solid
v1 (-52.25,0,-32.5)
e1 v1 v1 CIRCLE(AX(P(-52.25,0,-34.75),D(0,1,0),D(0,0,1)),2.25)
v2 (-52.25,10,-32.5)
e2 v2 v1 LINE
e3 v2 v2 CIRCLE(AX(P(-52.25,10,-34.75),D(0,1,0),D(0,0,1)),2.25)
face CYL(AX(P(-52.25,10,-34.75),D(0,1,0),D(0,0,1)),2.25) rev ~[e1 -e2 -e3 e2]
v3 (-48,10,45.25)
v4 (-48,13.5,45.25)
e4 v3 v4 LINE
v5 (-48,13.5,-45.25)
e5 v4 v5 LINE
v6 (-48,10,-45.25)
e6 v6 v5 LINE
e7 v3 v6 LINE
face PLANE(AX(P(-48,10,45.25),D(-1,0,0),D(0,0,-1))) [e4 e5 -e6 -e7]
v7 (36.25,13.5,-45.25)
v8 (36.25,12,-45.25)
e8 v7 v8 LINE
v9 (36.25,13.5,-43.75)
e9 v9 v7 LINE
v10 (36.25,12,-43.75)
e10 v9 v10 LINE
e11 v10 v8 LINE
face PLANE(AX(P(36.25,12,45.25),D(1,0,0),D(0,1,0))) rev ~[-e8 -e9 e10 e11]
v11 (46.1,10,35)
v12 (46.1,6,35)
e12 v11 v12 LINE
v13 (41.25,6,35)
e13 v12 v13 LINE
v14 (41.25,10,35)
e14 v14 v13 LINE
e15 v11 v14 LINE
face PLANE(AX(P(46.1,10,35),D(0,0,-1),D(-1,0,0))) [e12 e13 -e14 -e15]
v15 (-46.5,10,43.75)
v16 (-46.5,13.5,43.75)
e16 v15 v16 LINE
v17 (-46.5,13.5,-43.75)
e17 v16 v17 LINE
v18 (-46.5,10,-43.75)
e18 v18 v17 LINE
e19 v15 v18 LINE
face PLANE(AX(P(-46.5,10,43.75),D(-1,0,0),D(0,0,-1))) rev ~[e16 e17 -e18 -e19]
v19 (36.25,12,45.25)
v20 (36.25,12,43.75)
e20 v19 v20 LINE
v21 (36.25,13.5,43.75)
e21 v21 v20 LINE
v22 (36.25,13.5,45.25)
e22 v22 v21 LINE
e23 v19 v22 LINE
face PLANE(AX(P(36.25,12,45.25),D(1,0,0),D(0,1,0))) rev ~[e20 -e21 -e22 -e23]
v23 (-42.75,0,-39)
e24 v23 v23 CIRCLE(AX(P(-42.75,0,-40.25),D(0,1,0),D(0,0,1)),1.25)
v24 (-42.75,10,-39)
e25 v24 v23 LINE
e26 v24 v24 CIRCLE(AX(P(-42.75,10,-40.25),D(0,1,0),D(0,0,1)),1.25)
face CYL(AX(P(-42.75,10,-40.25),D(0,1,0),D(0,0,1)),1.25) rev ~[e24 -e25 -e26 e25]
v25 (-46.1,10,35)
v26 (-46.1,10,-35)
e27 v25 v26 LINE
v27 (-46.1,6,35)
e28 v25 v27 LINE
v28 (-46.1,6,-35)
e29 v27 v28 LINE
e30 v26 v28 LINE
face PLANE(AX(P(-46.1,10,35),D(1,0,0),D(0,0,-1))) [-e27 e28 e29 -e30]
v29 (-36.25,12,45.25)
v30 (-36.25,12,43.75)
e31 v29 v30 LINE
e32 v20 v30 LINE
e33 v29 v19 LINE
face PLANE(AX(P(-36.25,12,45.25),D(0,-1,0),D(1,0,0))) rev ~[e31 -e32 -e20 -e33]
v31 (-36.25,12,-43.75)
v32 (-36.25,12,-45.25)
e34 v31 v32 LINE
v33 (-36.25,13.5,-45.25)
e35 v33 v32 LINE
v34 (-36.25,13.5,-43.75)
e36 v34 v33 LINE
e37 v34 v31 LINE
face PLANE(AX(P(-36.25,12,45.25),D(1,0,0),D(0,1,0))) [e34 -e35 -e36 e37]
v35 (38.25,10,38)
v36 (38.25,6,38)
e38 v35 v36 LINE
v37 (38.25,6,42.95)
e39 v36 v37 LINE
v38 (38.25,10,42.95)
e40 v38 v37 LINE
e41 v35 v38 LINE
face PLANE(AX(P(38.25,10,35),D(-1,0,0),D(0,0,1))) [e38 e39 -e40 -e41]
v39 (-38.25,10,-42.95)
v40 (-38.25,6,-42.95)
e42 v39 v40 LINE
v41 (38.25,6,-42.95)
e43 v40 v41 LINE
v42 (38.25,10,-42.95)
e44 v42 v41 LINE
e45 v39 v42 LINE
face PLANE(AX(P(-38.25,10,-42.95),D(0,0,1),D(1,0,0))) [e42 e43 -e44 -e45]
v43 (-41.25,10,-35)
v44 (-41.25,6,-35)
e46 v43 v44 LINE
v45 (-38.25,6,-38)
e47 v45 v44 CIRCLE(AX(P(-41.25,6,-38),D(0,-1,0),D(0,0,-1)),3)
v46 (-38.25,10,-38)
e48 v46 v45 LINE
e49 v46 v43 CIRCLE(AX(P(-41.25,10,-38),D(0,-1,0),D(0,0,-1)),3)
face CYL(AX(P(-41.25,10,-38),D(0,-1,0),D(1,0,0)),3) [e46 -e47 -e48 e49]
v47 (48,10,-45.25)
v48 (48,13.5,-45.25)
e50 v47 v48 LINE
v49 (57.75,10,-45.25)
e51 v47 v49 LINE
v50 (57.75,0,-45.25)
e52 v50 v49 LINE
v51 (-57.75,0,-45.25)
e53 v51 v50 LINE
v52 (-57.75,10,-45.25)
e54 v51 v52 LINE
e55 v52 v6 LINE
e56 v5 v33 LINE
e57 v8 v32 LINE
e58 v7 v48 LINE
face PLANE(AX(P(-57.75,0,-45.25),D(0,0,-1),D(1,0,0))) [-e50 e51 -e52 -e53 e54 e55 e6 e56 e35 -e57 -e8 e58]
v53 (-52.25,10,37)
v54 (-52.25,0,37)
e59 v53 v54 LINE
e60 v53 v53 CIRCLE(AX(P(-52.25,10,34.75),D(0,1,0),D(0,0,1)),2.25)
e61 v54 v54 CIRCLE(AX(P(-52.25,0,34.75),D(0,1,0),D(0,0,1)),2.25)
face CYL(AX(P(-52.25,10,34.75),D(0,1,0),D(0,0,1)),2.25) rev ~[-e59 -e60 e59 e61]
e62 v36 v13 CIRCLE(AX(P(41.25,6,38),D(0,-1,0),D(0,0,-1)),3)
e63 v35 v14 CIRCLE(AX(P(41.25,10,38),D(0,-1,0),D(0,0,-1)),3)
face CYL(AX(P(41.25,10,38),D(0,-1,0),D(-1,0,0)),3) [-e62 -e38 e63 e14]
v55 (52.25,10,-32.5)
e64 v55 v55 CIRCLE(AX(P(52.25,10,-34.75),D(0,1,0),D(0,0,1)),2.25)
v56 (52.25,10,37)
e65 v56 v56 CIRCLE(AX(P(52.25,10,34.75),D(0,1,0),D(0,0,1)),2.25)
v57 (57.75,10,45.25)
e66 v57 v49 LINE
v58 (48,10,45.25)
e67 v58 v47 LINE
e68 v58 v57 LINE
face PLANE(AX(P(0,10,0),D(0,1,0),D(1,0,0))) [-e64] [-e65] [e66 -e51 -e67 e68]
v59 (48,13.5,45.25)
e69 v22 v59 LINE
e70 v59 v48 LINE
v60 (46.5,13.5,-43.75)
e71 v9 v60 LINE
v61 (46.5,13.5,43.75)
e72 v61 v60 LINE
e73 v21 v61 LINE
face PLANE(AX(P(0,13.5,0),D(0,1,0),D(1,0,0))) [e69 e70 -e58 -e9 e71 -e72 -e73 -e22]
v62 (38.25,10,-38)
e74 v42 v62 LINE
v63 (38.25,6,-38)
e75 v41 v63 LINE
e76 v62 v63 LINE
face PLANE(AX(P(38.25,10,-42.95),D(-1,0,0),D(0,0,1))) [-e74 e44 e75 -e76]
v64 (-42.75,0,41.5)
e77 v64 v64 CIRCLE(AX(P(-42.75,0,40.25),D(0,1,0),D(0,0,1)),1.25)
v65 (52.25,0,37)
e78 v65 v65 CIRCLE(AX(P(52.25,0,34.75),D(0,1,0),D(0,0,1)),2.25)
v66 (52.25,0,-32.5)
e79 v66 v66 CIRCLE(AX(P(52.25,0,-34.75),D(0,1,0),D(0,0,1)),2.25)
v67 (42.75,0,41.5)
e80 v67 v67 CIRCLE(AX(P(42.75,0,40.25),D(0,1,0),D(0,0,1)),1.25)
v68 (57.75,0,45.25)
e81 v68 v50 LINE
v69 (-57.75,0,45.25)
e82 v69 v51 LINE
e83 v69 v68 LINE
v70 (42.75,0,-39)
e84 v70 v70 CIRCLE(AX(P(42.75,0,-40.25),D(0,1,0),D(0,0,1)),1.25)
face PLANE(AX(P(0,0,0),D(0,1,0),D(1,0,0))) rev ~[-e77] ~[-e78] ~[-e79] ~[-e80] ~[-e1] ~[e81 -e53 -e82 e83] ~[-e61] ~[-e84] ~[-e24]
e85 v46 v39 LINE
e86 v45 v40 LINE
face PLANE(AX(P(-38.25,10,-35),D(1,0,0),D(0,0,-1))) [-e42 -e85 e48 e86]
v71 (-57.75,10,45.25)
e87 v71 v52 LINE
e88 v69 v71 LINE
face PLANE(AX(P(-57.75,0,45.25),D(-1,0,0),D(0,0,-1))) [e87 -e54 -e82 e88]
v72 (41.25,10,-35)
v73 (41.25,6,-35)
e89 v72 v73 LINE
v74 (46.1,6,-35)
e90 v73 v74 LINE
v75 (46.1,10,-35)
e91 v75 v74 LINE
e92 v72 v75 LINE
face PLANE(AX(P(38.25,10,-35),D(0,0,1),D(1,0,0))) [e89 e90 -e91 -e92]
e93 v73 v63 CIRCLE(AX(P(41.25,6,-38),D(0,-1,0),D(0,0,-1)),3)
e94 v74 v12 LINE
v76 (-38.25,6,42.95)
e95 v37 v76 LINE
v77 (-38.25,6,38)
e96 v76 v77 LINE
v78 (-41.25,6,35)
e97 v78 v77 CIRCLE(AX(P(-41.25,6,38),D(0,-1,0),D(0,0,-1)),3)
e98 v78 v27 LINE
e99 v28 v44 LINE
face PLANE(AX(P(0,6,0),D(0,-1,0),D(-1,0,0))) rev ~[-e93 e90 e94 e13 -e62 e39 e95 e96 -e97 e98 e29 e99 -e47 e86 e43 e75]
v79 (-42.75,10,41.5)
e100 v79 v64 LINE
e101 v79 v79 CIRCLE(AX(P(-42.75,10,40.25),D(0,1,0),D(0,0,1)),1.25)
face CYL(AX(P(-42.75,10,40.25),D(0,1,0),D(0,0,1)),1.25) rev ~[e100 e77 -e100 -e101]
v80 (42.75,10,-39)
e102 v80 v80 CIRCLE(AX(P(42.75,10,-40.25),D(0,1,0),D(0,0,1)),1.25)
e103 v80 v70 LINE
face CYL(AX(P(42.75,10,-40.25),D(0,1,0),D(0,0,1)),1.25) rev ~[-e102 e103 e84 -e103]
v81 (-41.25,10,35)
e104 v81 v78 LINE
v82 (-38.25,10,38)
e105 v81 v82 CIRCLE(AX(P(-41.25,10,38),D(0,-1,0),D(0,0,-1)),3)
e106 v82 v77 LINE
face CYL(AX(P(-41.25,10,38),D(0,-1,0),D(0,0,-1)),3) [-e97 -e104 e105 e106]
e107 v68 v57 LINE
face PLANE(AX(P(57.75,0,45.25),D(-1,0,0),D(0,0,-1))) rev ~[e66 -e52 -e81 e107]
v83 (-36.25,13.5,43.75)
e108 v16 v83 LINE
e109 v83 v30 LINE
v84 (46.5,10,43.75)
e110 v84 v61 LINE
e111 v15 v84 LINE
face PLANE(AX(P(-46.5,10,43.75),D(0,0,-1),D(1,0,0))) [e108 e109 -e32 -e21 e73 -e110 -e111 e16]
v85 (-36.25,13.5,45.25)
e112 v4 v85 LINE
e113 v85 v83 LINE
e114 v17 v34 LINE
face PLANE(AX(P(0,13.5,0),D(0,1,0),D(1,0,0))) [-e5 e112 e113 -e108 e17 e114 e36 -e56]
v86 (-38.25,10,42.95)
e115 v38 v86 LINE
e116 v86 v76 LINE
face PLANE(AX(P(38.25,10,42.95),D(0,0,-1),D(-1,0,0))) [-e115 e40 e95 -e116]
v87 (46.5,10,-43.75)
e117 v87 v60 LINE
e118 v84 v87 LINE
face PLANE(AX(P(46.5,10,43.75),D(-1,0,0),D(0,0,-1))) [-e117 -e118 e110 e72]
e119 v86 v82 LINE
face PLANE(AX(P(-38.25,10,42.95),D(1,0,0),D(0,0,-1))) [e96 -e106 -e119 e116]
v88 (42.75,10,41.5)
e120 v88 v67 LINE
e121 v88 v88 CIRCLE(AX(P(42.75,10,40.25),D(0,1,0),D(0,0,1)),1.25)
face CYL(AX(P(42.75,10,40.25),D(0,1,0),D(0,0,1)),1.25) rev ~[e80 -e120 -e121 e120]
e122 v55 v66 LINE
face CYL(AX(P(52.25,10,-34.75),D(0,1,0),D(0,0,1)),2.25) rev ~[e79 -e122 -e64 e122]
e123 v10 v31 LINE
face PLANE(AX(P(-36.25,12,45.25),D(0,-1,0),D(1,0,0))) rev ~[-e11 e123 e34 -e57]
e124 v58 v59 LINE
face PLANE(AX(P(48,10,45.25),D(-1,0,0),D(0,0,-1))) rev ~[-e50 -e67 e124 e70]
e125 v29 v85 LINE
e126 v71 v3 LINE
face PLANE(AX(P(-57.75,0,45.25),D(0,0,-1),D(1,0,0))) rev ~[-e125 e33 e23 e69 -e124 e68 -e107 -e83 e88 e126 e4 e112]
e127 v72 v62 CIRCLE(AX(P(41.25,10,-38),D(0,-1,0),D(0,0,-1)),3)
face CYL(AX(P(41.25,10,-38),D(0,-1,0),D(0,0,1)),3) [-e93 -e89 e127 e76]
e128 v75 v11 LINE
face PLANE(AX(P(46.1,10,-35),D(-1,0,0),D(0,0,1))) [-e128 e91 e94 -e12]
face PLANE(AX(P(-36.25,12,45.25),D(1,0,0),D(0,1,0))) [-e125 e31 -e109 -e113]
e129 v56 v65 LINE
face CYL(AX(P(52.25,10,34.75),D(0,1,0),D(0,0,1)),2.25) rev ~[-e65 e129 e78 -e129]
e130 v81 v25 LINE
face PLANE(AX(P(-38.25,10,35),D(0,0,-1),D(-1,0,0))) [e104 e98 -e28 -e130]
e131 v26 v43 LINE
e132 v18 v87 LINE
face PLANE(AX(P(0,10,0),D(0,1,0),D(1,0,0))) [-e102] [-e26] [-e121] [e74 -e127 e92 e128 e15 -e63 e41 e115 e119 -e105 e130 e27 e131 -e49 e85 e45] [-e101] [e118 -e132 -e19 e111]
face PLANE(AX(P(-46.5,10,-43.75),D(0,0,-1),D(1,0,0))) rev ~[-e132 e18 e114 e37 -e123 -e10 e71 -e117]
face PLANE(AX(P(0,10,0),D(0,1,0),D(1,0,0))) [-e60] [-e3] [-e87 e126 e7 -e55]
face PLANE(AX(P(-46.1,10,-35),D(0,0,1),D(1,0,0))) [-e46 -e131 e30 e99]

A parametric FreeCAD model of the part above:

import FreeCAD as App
import Part
import Sketcher


def edges_at(feature, points):
    """Names of the edges that pass closest to the given points."""
    edges = feature.Shape.Edges
    near = lambda p: min(range(len(edges)), key=lambda i: edges[i].distToShape(Part.Vertex(*p))[0])
    return sorted({f"Edge{near(p) + 1}" for p in points})

doc = App.newDocument("Part")
body = doc.addObject("PartDesign::Body", "Body")

# Sketch on XZ plane
sketch1 = body.newObject("Sketcher::SketchObject", "Sketch")
sketch1.AttachmentSupport = (doc.getObject("XZ_Plane"), [""])
sketch1.MapMode = "FlatFace"
sketch1.addGeometry(Part.LineSegment(App.Vector(-58, -45, 0), App.Vector(-58, 45, 0)), False)
sketch1.addGeometry(Part.LineSegment(App.Vector(-58, 45, 0), App.Vector(58, 45, 0)), False)
sketch1.addGeometry(Part.LineSegment(App.Vector(58, 45, 0), App.Vector(58, -45, 0)), False)
sketch1.addGeometry(Part.LineSegment(App.Vector(58, -45, 0), App.Vector(-58, -45, 0)), False)
sketch1.addConstraint(Sketcher.Constraint("Coincident", 0, 2, 1, 1))
sketch1.addConstraint(Sketcher.Constraint("Coincident", 1, 2, 2, 1))
sketch1.addConstraint(Sketcher.Constraint("Coincident", 2, 2, 3, 1))
sketch1.addConstraint(Sketcher.Constraint("Coincident", 3, 2, 0, 1))
sketch1.addConstraint(Sketcher.Constraint("Vertical", 0))
sketch1.addConstraint(Sketcher.Constraint("Horizontal", 1))
sketch1.addConstraint(Sketcher.Constraint("Vertical", 2))
sketch1.addConstraint(Sketcher.Constraint("Horizontal", 3))
sketch1.addConstraint(Sketcher.Constraint("Symmetric", 0, 2, 2, 2, -1, 1))
sketch1.addConstraint(Sketcher.Constraint("DistanceX", 1, 1, 1, 2, 115.5))
sketch1.addConstraint(Sketcher.Constraint("DistanceY", 0, 1, 0, 2, 90.5))
pad1 = body.newObject("PartDesign::Pad", "Pad")
pad1.Profile = sketch1
pad1.Length = 10
pad1.Reversed = True

# Sketch on XZ plane
sketch2 = body.newObject("Sketcher::SketchObject", "Sketch001")
sketch2.AttachmentSupport = (doc.getObject("XZ_Plane"), [""])
sketch2.MapMode = "FlatFace"
sketch2.AttachmentOffset = App.Placement(App.Vector(0, 0, -10), App.Rotation())
sketch2.addGeometry(Part.LineSegment(App.Vector(-48, -45, 0), App.Vector(-48, 45, 0)), False)
sketch2.addGeometry(Part.LineSegment(App.Vector(-48, 45, 0), App.Vector(48, 45, 0)), False)
sketch2.addGeometry(Part.LineSegment(App.Vector(48, 45, 0), App.Vector(48, -45, 0)), False)
sketch2.addGeometry(Part.LineSegment(App.Vector(48, -45, 0), App.Vector(-48, -45, 0)), False)
sketch2.addGeometry(Part.LineSegment(App.Vector(46, 44, 0), App.Vector(-46, 44, 0)), False)
sketch2.addGeometry(Part.LineSegment(App.Vector(-46, 44, 0), App.Vector(-46, -44, 0)), False)
sketch2.addGeometry(Part.LineSegment(App.Vector(-46, -44, 0), App.Vector(46, -44, 0)), False)
sketch2.addGeometry(Part.LineSegment(App.Vector(46, -44, 0), App.Vector(46, 44, 0)), False)
sketch2.addConstraint(Sketcher.Constraint("Coincident", 0, 2, 1, 1))
sketch2.addConstraint(Sketcher.Constraint("Coincident", 1, 2, 2, 1))
sketch2.addConstraint(Sketcher.Constraint("Coincident", 2, 2, 3, 1))
sketch2.addConstraint(Sketcher.Constraint("Coincident", 3, 2, 0, 1))
sketch2.addConstraint(Sketcher.Constraint("Coincident", 4, 2, 5, 1))
sketch2.addConstraint(Sketcher.Constraint("Coincident", 5, 2, 6, 1))
sketch2.addConstraint(Sketcher.Constraint("Coincident", 6, 2, 7, 1))
sketch2.addConstraint(Sketcher.Constraint("Coincident", 7, 2, 4, 1))
sketch2.addConstraint(Sketcher.Constraint("Vertical", 0))
sketch2.addConstraint(Sketcher.Constraint("Horizontal", 1))
sketch2.addConstraint(Sketcher.Constraint("Vertical", 2))
sketch2.addConstraint(Sketcher.Constraint("Horizontal", 3))
sketch2.addConstraint(Sketcher.Constraint("Horizontal", 4))
sketch2.addConstraint(Sketcher.Constraint("Vertical", 5))
sketch2.addConstraint(Sketcher.Constraint("Horizontal", 6))
sketch2.addConstraint(Sketcher.Constraint("Vertical", 7))
sketch2.addConstraint(Sketcher.Constraint("Symmetric", 0, 2, 2, 2, -1, 1))
sketch2.addConstraint(Sketcher.Constraint("Symmetric", 4, 2, 6, 2, -1, 1))
sketch2.addConstraint(Sketcher.Constraint("DistanceX", 1, 1, 1, 2, 96.0))
sketch2.addConstraint(Sketcher.Constraint("DistanceX", 4, 2, 4, 1, 93.0))
sketch2.addConstraint(Sketcher.Constraint("DistanceY", 0, 1, 0, 2, 90.5))
sketch2.addConstraint(Sketcher.Constraint("DistanceY", 5, 2, 5, 1, 87.5))
pad2 = body.newObject("PartDesign::Pad", "Pad001")
pad2.Profile = sketch2
pad2.Length = 3.5
pad2.Reversed = True

# Sketch on XZ plane
sketch3 = body.newObject("Sketcher::SketchObject", "Sketch002")
sketch3.AttachmentSupport = (doc.getObject("XZ_Plane"), [""])
sketch3.MapMode = "FlatFace"
sketch3.AttachmentOffset = App.Placement(App.Vector(0, 0, -10), App.Rotation())
sketch3.addGeometry(Part.Circle(App.Vector(-42.8, -40.2, 0), App.Vector(0, 0, 1), 1.2), False)
sketch3.addGeometry(Part.Circle(App.Vector(42.8, -40.2, 0), App.Vector(0, 0, 1), 1.2), False)
sketch3.addGeometry(Part.Circle(App.Vector(42.8, 40.2, 0), App.Vector(0, 0, 1), 1.2), False)
sketch3.addGeometry(Part.Circle(App.Vector(-42.8, 40.2, 0), App.Vector(0, 0, 1), 1.2), False)
sketch3.addConstraint(Sketcher.Constraint("Equal", 0, 1))
sketch3.addConstraint(Sketcher.Constraint("Equal", 1, 2))
sketch3.addConstraint(Sketcher.Constraint("Equal", 2, 3))
sketch3.addConstraint(Sketcher.Constraint("Symmetric", 0, 3, 2, 3, -1, 1))
sketch3.addConstraint(Sketcher.Constraint("Symmetric", 1, 3, 3, 3, -1, 1))
sketch3.addConstraint(Sketcher.Constraint("Symmetric", 0, 3, 1, 3, -2))
sketch3.addConstraint(Sketcher.Constraint("Diameter", 0, 2.5))
sketch3.addConstraint(Sketcher.Constraint("DistanceX", 0, 3, 1, 3, 85.5))
sketch3.addConstraint(Sketcher.Constraint("DistanceY", 1, 3, 2, 3, 80.5))
pocket1 = body.newObject("PartDesign::Pocket", "Pocket")
pocket1.Profile = sketch3
pocket1.Length = 20
pocket1.Reversed = True

# Sketch on XZ plane
sketch4 = body.newObject("Sketcher::SketchObject", "Sketch003")
sketch4.AttachmentSupport = (doc.getObject("XZ_Plane"), [""])
sketch4.MapMode = "FlatFace"
sketch4.AttachmentOffset = App.Placement(App.Vector(0, 0, -10), App.Rotation())
sketch4.addGeometry(Part.LineSegment(App.Vector(38, -43, 0), App.Vector(-38, -43, 0)), False)
sketch4.addGeometry(Part.LineSegment(App.Vector(-38, -43, 0), App.Vector(-38, -35, 0)), False)
sketch4.addGeometry(Part.LineSegment(App.Vector(-38, -35, 0), App.Vector(-46, -35, 0)), False)
sketch4.addGeometry(Part.LineSegment(App.Vector(-46, -35, 0), App.Vector(-46, 35, 0)), False)
sketch4.addGeometry(Part.LineSegment(App.Vector(-46, 35, 0), App.Vector(-38, 35, 0)), False)
sketch4.addGeometry(Part.LineSegment(App.Vector(-38, 35, 0), App.Vector(-38, 43, 0)), False)
sketch4.addGeometry(Part.LineSegment(App.Vector(-38, 43, 0), App.Vector(38, 43, 0)), False)
sketch4.addGeometry(Part.LineSegment(App.Vector(38, 43, 0), App.Vector(38, 35, 0)), False)
sketch4.addGeometry(Part.LineSegment(App.Vector(38, 35, 0), App.Vector(46, 35, 0)), False)
sketch4.addGeometry(Part.LineSegment(App.Vector(46, 35, 0), App.Vector(46, -35, 0)), False)
sketch4.addGeometry(Part.LineSegment(App.Vector(46, -35, 0), App.Vector(38, -35, 0)), False)
sketch4.addGeometry(Part.LineSegment(App.Vector(38, -35, 0), App.Vector(38, -43, 0)), False)
sketch4.addConstraint(Sketcher.Constraint("Coincident", 0, 2, 1, 1))
sketch4.addConstraint(Sketcher.Constraint("Coincident", 1, 2, 2, 1))
sketch4.addConstraint(Sketcher.Constraint("Coincident", 2, 2, 3, 1))
sketch4.addConstraint(Sketcher.Constraint("Coincident", 3, 2, 4, 1))
sketch4.addConstraint(Sketcher.Constraint("Coincident", 4, 2, 5, 1))
sketch4.addConstraint(Sketcher.Constraint("Coincident", 5, 2, 6, 1))
sketch4.addConstraint(Sketcher.Constraint("Coincident", 6, 2, 7, 1))
sketch4.addConstraint(Sketcher.Constraint("Coincident", 7, 2, 8, 1))
sketch4.addConstraint(Sketcher.Constraint("Coincident", 8, 2, 9, 1))
sketch4.addConstraint(Sketcher.Constraint("Coincident", 9, 2, 10, 1))
sketch4.addConstraint(Sketcher.Constraint("Coincident", 10, 2, 11, 1))
sketch4.addConstraint(Sketcher.Constraint("Coincident", 11, 2, 0, 1))
sketch4.addConstraint(Sketcher.Constraint("Horizontal", 0))
sketch4.addConstraint(Sketcher.Constraint("Vertical", 1))
sketch4.addConstraint(Sketcher.Constraint("Horizontal", 2))
sketch4.addConstraint(Sketcher.Constraint("Vertical", 3))
sketch4.addConstraint(Sketcher.Constraint("Horizontal", 4))
sketch4.addConstraint(Sketcher.Constraint("Vertical", 5))
sketch4.addConstraint(Sketcher.Constraint("Horizontal", 6))
sketch4.addConstraint(Sketcher.Constraint("Vertical", 7))
sketch4.addConstraint(Sketcher.Constraint("Horizontal", 8))
sketch4.addConstraint(Sketcher.Constraint("Vertical", 9))
sketch4.addConstraint(Sketcher.Constraint("Horizontal", 10))
sketch4.addConstraint(Sketcher.Constraint("Vertical", 11))
sketch4.addConstraint(Sketcher.Constraint("Symmetric", 0, 2, 6, 2, -1, 1))
sketch4.addConstraint(Sketcher.Constraint("Symmetric", 2, 2, 8, 2, -1, 1))
sketch4.addConstraint(Sketcher.Constraint("Symmetric", 4, 2, 10, 2, -1, 1))
sketch4.addConstraint(Sketcher.Constraint("Symmetric", 4, 2, 7, 2, -2))
sketch4.addConstraint(Sketcher.Constraint("DistanceY", 3, 1, 3, 2, 70.0))
sketch4.addConstraint(Sketcher.Constraint("DistanceX", 0, 2, 0, 1, 76.5))
sketch4.addConstraint(Sketcher.Constraint("DistanceX", 2, 2, 2, 1, 7.85))
sketch4.addConstraint(Sketcher.Constraint("DistanceY", 1, 1, 1, 2, 7.95))
pocket2 = body.newObject("PartDesign::Pocket", "Pocket001")
pocket2.Profile = sketch4
pocket2.Length = 4
pocket2.Reversed = True
doc.recompute()

fillet = body.newObject("PartDesign::Fillet", "Fillet")
fillet.Base = (pocket2, edges_at(pocket2, [
    (-38.25, 8, -35),
    (38.25, 8, -35),
    (38.25, 8, 35),
    (-38.25, 8, 35),
]))
fillet.Radius = 3

# Sketch on XZ plane
sketch5 = body.newObject("Sketcher::SketchObject", "Sketch004")
sketch5.AttachmentSupport = (doc.getObject("XZ_Plane"), [""])
sketch5.MapMode = "FlatFace"
sketch5.AttachmentOffset = App.Placement(App.Vector(0, 0, -10), App.Rotation())
sketch5.addGeometry(Part.Circle(App.Vector(-52.2, -34.8, 0), App.Vector(0, 0, 1), 2.2), False)
sketch5.addGeometry(Part.Circle(App.Vector(52.2, -34.8, 0), App.Vector(0, 0, 1), 2.2), False)
sketch5.addGeometry(Part.Circle(App.Vector(52.2, 34.8, 0), App.Vector(0, 0, 1), 2.2), False)
sketch5.addGeometry(Part.Circle(App.Vector(-52.2, 34.8, 0), App.Vector(0, 0, 1), 2.2), False)
sketch5.addConstraint(Sketcher.Constraint("Equal", 0, 1))
sketch5.addConstraint(Sketcher.Constraint("Equal", 1, 2))
sketch5.addConstraint(Sketcher.Constraint("Equal", 2, 3))
sketch5.addConstraint(Sketcher.Constraint("Symmetric", 0, 3, 2, 3, -1, 1))
sketch5.addConstraint(Sketcher.Constraint("Symmetric", 1, 3, 3, 3, -1, 1))
sketch5.addConstraint(Sketcher.Constraint("Symmetric", 0, 3, 1, 3, -2))
sketch5.addConstraint(Sketcher.Constraint("Diameter", 0, 4.5))
sketch5.addConstraint(Sketcher.Constraint("DistanceX", 0, 3, 1, 3, 104.5))
sketch5.addConstraint(Sketcher.Constraint("DistanceY", 1, 3, 2, 3, 69.5))
pocket3 = body.newObject("PartDesign::Pocket", "Pocket002")
pocket3.Profile = sketch5
pocket3.Length = 15
pocket3.Reversed = True

# Sketch on XY plane
sketch6 = body.newObject("Sketcher::SketchObject", "Sketch005")
sketch6.AttachmentSupport = (doc.getObject("XY_Plane"), [""])
sketch6.MapMode = "FlatFace"
sketch6.AttachmentOffset = App.Placement(App.Vector(0, 0, 45.25), App.Rotation())
sketch6.addGeometry(Part.LineSegment(App.Vector(-36, 23, 0), App.Vector(-36, 12, 0)), False)
sketch6.addGeometry(Part.LineSegment(App.Vector(-36, 12, 0), App.Vector(36, 12, 0)), False)
sketch6.addGeometry(Part.LineSegment(App.Vector(36, 12, 0), App.Vector(36, 23, 0)), False)
sketch6.addGeometry(Part.LineSegment(App.Vector(36, 23, 0), App.Vector(-36, 23, 0)), False)
sketch6.addConstraint(Sketcher.Constraint("Coincident", 0, 2, 1, 1))
sketch6.addConstraint(Sketcher.Constraint("Coincident", 1, 2, 2, 1))
sketch6.addConstraint(Sketcher.Constraint("Coincident", 2, 2, 3, 1))
sketch6.addConstraint(Sketcher.Constraint("Coincident", 3, 2, 0, 1))
sketch6.addConstraint(Sketcher.Constraint("Vertical", 0))
sketch6.addConstraint(Sketcher.Constraint("Horizontal", 1))
sketch6.addConstraint(Sketcher.Constraint("Vertical", 2))
sketch6.addConstraint(Sketcher.Constraint("Horizontal", 3))
sketch6.addConstraint(Sketcher.Constraint("DistanceX", 1, 1, 1, 2, 72.5))
sketch6.addConstraint(Sketcher.Constraint("DistanceY", -1, 1, 0, 2, 12.0))
sketch6.addConstraint(Sketcher.Constraint("DistanceX", 0, 2, -1, 1, 36.25))
sketch6.addConstraint(Sketcher.Constraint("DistanceY", 0, 2, 0, 1, 10.50185))
pocket4 = body.newObject("PartDesign::Pocket", "Pocket003")
pocket4.Profile = sketch6
pocket4.Length = 98

doc.recompute()
